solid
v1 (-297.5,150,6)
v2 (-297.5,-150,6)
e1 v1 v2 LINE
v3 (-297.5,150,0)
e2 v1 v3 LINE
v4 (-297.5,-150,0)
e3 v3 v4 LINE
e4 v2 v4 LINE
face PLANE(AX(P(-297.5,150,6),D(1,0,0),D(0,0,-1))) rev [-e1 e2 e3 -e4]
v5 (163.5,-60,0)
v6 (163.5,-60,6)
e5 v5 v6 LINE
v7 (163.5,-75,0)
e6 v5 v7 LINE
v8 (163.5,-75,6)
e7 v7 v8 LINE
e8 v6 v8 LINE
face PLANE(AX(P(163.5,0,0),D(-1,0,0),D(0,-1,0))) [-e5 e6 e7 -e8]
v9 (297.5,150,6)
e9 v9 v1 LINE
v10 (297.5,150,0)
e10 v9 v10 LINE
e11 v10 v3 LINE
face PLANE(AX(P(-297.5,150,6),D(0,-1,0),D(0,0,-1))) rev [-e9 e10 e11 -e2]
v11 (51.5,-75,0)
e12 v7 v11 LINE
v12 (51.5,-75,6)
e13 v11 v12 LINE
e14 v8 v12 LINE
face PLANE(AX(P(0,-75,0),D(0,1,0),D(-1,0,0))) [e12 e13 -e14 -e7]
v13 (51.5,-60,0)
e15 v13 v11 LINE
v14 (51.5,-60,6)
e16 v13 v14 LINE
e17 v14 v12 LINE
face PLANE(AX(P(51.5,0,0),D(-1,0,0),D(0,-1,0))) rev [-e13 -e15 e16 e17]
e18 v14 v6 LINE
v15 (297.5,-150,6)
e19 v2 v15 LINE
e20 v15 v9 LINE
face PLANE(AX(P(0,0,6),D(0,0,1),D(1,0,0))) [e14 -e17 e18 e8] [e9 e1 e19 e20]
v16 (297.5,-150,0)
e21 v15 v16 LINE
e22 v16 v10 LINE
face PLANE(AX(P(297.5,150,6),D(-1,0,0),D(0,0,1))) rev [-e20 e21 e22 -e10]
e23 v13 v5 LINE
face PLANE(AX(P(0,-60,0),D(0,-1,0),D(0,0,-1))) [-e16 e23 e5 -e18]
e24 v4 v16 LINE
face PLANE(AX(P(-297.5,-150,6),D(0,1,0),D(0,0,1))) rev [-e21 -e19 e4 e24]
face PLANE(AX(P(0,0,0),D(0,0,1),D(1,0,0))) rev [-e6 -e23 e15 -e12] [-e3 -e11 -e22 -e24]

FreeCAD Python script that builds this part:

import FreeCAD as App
import Part
import Sketcher

V = App.Vector
Q = App.Units.Quantity


def add_polygon(sketch, points):
    """Adds a closed chain of lines whose ends are joined by coincident constraints."""
    first, n = sketch.GeometryCount, len(points)
    for a, b in zip(points, points[1:] + points[:1]):
        sketch.addGeometry(Part.LineSegment(App.Vector(*a, 0), App.Vector(*b, 0)), False)
    for i in range(n):
        sketch.addConstraint(Sketcher.Constraint("Coincident", first + i, 2, first + (i + 1) % n, 1))

doc = App.newDocument("Part")
body = doc.addObject("PartDesign::Body", "Body")

sketch1 = body.newObject("Sketcher::SketchObject", "Sketch")
sketch1.AttachmentSupport = (doc.getObject("XY_Plane"), [""])
sketch1.MapMode = "FlatFace"
add_polygon(sketch1, [(-298, 150), (-298, -150), (298, -150), (298, 150)])
sketch1.addConstraint([
    Sketcher.Constraint("Vertical", 0),
    Sketcher.Constraint("Horizontal", 1),
    Sketcher.Constraint("Vertical", 2),
    Sketcher.Constraint("Horizontal", 3),
    Sketcher.Constraint("Symmetric", 0, 2, 2, 2, -1, 1),
    Sketcher.Constraint("DistanceX", 1, 1, 1, 2, Q("595 mm")),
    Sketcher.Constraint("DistanceY", 0, 2, 0, 1, Q("300 mm")),
])
pad1 = body.newObject("PartDesign::Pad", "Pad")
pad1.Profile = sketch1
pad1.Length = 6

sketch2 = body.newObject("Sketcher::SketchObject", "Sketch001")
sketch2.AttachmentSupport = (doc.getObject("XY_Plane"), [""])
sketch2.MapMode = "FlatFace"
sketch2.AttachmentOffset = App.Placement(V(0, 0, 6), App.Rotation())
add_polygon(sketch2, [(52, -60), (52, -75), (164, -75), (164, -60)])
sketch2.addConstraint([
    Sketcher.Constraint("Vertical", 0),
    Sketcher.Constraint("Horizontal", 1),
    Sketcher.Constraint("Vertical", 2),
    Sketcher.Constraint("Horizontal", 3),
    Sketcher.Constraint("DistanceX", 1, 1, 1, 2, Q("112 mm")),
    Sketcher.Constraint("DistanceY", 0, 2, 0, 1, Q("15 mm")),
    Sketcher.Constraint("DistanceY", 0, 2, -1, 1, Q("75 mm")),
    Sketcher.Constraint("DistanceX", -1, 1, 0, 2, Q("51.5 mm")),
])
pocket1 = body.newObject("PartDesign::Pocket", "Pocket")
pocket1.Profile = sketch2
pocket1.Type = "ThroughAll"

doc.recompute()
